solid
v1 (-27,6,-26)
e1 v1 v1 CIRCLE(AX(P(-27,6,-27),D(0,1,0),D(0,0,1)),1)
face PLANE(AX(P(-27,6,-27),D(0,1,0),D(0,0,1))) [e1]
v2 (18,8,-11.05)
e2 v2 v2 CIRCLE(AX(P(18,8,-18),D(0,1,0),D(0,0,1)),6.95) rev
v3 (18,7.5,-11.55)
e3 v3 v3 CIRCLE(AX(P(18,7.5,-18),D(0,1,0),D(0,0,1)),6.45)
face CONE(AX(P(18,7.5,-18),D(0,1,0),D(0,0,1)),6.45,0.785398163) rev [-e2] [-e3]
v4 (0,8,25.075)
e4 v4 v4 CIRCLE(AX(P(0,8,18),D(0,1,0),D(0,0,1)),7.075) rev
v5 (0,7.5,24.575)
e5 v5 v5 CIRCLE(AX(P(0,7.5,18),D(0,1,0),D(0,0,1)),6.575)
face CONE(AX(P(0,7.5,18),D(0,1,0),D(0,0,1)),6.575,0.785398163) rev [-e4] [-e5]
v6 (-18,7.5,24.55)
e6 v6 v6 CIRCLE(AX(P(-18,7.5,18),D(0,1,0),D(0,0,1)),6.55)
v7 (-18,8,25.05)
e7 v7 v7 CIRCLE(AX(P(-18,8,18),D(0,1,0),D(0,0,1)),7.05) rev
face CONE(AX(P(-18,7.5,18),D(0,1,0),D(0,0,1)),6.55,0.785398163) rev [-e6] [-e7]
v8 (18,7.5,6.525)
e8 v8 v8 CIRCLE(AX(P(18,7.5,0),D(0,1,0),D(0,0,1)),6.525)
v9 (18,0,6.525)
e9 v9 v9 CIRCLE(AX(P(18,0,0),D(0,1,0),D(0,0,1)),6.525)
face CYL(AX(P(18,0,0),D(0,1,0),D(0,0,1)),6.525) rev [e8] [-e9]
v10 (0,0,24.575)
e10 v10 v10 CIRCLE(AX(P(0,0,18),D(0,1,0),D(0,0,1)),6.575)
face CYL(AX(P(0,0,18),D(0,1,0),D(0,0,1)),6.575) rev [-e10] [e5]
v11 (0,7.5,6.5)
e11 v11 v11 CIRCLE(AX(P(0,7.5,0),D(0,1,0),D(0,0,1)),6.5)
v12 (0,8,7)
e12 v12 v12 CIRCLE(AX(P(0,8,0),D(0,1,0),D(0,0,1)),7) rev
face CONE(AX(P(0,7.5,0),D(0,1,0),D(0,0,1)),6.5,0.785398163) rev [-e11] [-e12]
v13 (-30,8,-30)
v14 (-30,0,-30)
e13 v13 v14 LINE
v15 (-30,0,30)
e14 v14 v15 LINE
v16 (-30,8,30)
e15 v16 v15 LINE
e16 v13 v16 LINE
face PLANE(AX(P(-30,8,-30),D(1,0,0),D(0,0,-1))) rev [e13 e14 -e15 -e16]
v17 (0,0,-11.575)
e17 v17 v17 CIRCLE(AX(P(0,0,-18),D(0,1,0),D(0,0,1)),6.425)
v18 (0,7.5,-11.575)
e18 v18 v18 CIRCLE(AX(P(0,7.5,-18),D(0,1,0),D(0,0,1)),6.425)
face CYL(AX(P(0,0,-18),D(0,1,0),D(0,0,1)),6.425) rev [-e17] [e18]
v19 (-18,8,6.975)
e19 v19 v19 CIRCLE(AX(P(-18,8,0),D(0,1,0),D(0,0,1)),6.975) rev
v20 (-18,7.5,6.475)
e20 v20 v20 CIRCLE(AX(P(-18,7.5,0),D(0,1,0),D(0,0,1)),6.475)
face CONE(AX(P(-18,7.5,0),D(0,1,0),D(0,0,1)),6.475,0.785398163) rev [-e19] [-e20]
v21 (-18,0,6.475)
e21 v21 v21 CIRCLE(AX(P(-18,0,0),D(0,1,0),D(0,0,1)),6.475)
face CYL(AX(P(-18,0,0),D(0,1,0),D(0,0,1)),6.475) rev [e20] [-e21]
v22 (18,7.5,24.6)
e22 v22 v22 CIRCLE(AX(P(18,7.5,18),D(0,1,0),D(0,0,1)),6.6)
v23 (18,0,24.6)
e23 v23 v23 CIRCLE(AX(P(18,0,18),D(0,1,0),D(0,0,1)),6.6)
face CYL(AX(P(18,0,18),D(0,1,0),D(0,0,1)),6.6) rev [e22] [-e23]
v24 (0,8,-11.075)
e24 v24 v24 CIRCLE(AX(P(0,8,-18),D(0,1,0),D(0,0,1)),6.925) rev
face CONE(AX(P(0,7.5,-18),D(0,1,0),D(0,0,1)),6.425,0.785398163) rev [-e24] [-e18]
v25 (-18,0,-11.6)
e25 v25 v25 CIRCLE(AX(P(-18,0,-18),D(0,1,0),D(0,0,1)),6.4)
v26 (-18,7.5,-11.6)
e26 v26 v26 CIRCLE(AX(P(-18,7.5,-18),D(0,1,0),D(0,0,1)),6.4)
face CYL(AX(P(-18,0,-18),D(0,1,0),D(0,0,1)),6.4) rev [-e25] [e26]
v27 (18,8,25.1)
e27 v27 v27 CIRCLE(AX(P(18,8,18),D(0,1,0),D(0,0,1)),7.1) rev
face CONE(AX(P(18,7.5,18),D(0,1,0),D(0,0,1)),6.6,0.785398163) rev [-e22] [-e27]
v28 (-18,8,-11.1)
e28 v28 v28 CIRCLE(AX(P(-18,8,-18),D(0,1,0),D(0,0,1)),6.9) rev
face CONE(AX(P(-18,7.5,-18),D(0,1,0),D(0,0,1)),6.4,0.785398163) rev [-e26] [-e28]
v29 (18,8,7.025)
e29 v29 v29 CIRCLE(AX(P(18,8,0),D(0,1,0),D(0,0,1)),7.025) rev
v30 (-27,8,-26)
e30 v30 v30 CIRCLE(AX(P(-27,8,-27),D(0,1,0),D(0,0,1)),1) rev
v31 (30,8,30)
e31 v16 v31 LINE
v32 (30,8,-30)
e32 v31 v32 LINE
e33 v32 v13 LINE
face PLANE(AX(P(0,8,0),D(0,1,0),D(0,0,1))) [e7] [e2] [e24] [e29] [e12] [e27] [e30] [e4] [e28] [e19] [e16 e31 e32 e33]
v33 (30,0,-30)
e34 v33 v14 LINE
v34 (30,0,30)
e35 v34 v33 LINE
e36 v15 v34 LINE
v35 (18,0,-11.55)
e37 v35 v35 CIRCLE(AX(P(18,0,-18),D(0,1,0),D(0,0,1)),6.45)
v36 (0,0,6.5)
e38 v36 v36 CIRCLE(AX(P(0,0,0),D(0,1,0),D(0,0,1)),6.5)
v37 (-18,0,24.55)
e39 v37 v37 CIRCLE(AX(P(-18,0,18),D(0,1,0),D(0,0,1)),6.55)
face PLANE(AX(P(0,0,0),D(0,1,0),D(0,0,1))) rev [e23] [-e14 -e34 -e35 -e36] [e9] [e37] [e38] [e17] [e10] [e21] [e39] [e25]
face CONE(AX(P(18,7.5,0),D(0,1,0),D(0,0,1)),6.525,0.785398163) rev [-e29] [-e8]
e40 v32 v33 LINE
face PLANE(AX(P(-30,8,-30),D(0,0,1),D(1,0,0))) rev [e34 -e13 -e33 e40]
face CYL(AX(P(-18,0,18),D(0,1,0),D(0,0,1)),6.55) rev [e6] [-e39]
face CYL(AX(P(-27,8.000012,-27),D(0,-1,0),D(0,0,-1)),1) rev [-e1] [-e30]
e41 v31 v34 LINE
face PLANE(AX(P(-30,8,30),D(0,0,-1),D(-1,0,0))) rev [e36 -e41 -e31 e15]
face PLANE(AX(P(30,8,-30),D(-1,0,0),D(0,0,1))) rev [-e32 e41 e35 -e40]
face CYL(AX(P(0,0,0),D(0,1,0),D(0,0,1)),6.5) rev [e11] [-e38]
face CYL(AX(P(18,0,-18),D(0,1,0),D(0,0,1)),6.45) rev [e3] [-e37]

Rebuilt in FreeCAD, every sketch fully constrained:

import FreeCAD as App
import Part
import Sketcher
from FreeCAD import Vector


def edges_at(feature, points):
    """Names of the edges that pass closest to the given points."""
    edges = feature.Shape.Edges
    near = lambda p: min(range(len(edges)), key=lambda i: edges[i].distToShape(Part.Vertex(*p))[0])
    return sorted({f"Edge{near(p) + 1}" for p in points})

doc = App.newDocument("Part")
body = doc.addObject("PartDesign::Body", "Body")

sketch1 = doc.addObject("Sketcher::SketchObject", "Sketch")
body.addObject(sketch1)
sketch1.AttachmentSupport = (doc.XZ_Plane, [""])
sketch1.MapMode = "FlatFace"
sketch1.addGeometry(Part.LineSegment(Vector(-30, -30, 0), Vector(-30, 30, 0)), False)
sketch1.addGeometry(Part.LineSegment(Vector(-30, 30, 0), Vector(30, 30, 0)), False)
sketch1.addGeometry(Part.LineSegment(Vector(30, 30, 0), Vector(30, -30, 0)), False)
sketch1.addGeometry(Part.LineSegment(Vector(30, -30, 0), Vector(-30, -30, 0)), False)
sketch1.addConstraint(Sketcher.Constraint("Coincident", 0, 2, 1, 1))
sketch1.addConstraint(Sketcher.Constraint("Coincident", 1, 2, 2, 1))
sketch1.addConstraint(Sketcher.Constraint("Coincident", 2, 2, 3, 1))
sketch1.addConstraint(Sketcher.Constraint("Coincident", 3, 2, 0, 1))
sketch1.addConstraint(Sketcher.Constraint("Vertical", 0))
sketch1.addConstraint(Sketcher.Constraint("Horizontal", 1))
sketch1.addConstraint(Sketcher.Constraint("Vertical", 2))
sketch1.addConstraint(Sketcher.Constraint("Horizontal", 3))
sketch1.addConstraint(Sketcher.Constraint("Symmetric", 0, 2, 2, 2, -1, 1))
sketch1.addConstraint(Sketcher.Constraint("Equal", 3, 0))
sketch1.addConstraint(Sketcher.Constraint("DistanceX", 1, 1, 1, 2, 60.0))
pad1 = doc.addObject("PartDesign::Pad", "Pad")
body.addObject(pad1)
pad1.Profile = sketch1
pad1.Length = 8
pad1.Reversed = True

sketch2 = doc.addObject("Sketcher::SketchObject", "Sketch001")
body.addObject(sketch2)
sketch2.AttachmentSupport = (doc.XZ_Plane, [""])
sketch2.MapMode = "FlatFace"
sketch2.AttachmentOffset = App.Placement(Vector(0, 0, -8), App.Rotation())
sketch2.addGeometry(Part.Circle(Vector(-18, -18, 0), Vector(0, 0, 1), 6), False)
sketch2.addGeometry(Part.Circle(Vector(0, -18, 0), Vector(0, 0, 1), 6), False)
sketch2.addGeometry(Part.Circle(Vector(18, -18, 0), Vector(0, 0, 1), 6), False)
sketch2.addGeometry(Part.Circle(Vector(-18, 0, 0), Vector(0, 0, 1), 6), False)
sketch2.addGeometry(Part.Circle(Vector(0, 0, 0), Vector(0, 0, 1), 6), False)
sketch2.addGeometry(Part.Circle(Vector(18, 0, 0), Vector(0, 0, 1), 7), False)
sketch2.addGeometry(Part.Circle(Vector(-18, 18, 0), Vector(0, 0, 1), 7), False)
sketch2.addGeometry(Part.Circle(Vector(0, 18, 0), Vector(0, 0, 1), 7), False)
sketch2.addGeometry(Part.Circle(Vector(18, 18, 0), Vector(0, 0, 1), 7), False)
sketch2.addConstraint(Sketcher.Constraint("Coincident", 4, 3, -1, 1))
sketch2.addConstraint(Sketcher.Constraint("Symmetric", 3, 3, 5, 3, -1, 1))
sketch2.addConstraint(Sketcher.Constraint("Symmetric", 2, 3, 6, 3, -1, 1))
sketch2.addConstraint(Sketcher.Constraint("Symmetric", 1, 3, 7, 3, -1, 1))
sketch2.addConstraint(Sketcher.Constraint("Symmetric", 0, 3, 8, 3, -1, 1))
sketch2.addConstraint(Sketcher.Constraint("Symmetric", 0, 3, 2, 3, -2))
sketch2.addConstraint(Sketcher.Constraint("PointOnObject", 1, 3, -2))
sketch2.addConstraint(Sketcher.Constraint("PointOnObject", 3, 3, -1))
sketch2.addConstraint(Sketcher.Constraint("Horizontal", 0, 3, 1, 3))
sketch2.addConstraint(Sketcher.Constraint("Vertical", 0, 3, 3, 3))
sketch2.addConstraint(Sketcher.Constraint("Diameter", 4, 13.0))
sketch2.addConstraint(Sketcher.Constraint("Diameter", 0, 12.8))
sketch2.addConstraint(Sketcher.Constraint("Diameter", 2, 12.9))
sketch2.addConstraint(Sketcher.Constraint("Diameter", 6, 13.1))
sketch2.addConstraint(Sketcher.Constraint("Diameter", 8, 13.2))
sketch2.addConstraint(Sketcher.Constraint("Diameter", 1, 12.85))
sketch2.addConstraint(Sketcher.Constraint("Diameter", 3, 12.95))
sketch2.addConstraint(Sketcher.Constraint("Diameter", 5, 13.05))
sketch2.addConstraint(Sketcher.Constraint("Diameter", 7, 13.15))
sketch2.addConstraint(Sketcher.Constraint("DistanceX", 0, 3, -1, 1, 18.0))
sketch2.addConstraint(Sketcher.Constraint("DistanceY", 0, 3, -1, 1, 18.0))
pocket1 = doc.addObject("PartDesign::Pocket", "Pocket")
body.addObject(pocket1)
pocket1.Profile = sketch2
pocket1.Type = "ThroughAll"
pocket1.Midplane = True
doc.recompute()

chamfer = doc.addObject("PartDesign::Chamfer", "Chamfer")
body.addObject(chamfer)
chamfer.Base = (pocket1, edges_at(pocket1, [
    (-6.425, 8, -18),
    (11.55, 8, -18),
    (-24.475, 8, 0),
    (-6.5, 8, 0),
    (-24.55, 8, 18),
    (11.4, 8, 18),
    (-6.575, 8, 18),
    (11.475, 8, 0),
    (-24.4, 8, -18),
]))
chamfer.Size = 0.5

sketch3 = doc.addObject("Sketcher::SketchObject", "Sketch002")
body.addObject(sketch3)
sketch3.AttachmentSupport = (doc.XZ_Plane, [""])
sketch3.MapMode = "FlatFace"
sketch3.AttachmentOffset = App.Placement(Vector(0, 0, -8), App.Rotation())
sketch3.addGeometry(Part.Circle(Vector(-27, -27, 0), Vector(0, 0, 1), 1), False)
sketch3.addConstraint(Sketcher.Constraint("Diameter", 0, 2.0))
sketch3.addConstraint(Sketcher.Constraint("DistanceX", 0, 3, -1, 1, 27.0))
sketch3.addConstraint(Sketcher.Constraint("DistanceY", 0, 3, -1, 1, 27.0))
pocket2 = doc.addObject("PartDesign::Pocket", "Pocket001")
body.addObject(pocket2)
pocket2.Profile = sketch3
pocket2.Type = "TwoLengths"
pocket2.Length = 1
pocket2.Length2 = 2

doc.recompute()
